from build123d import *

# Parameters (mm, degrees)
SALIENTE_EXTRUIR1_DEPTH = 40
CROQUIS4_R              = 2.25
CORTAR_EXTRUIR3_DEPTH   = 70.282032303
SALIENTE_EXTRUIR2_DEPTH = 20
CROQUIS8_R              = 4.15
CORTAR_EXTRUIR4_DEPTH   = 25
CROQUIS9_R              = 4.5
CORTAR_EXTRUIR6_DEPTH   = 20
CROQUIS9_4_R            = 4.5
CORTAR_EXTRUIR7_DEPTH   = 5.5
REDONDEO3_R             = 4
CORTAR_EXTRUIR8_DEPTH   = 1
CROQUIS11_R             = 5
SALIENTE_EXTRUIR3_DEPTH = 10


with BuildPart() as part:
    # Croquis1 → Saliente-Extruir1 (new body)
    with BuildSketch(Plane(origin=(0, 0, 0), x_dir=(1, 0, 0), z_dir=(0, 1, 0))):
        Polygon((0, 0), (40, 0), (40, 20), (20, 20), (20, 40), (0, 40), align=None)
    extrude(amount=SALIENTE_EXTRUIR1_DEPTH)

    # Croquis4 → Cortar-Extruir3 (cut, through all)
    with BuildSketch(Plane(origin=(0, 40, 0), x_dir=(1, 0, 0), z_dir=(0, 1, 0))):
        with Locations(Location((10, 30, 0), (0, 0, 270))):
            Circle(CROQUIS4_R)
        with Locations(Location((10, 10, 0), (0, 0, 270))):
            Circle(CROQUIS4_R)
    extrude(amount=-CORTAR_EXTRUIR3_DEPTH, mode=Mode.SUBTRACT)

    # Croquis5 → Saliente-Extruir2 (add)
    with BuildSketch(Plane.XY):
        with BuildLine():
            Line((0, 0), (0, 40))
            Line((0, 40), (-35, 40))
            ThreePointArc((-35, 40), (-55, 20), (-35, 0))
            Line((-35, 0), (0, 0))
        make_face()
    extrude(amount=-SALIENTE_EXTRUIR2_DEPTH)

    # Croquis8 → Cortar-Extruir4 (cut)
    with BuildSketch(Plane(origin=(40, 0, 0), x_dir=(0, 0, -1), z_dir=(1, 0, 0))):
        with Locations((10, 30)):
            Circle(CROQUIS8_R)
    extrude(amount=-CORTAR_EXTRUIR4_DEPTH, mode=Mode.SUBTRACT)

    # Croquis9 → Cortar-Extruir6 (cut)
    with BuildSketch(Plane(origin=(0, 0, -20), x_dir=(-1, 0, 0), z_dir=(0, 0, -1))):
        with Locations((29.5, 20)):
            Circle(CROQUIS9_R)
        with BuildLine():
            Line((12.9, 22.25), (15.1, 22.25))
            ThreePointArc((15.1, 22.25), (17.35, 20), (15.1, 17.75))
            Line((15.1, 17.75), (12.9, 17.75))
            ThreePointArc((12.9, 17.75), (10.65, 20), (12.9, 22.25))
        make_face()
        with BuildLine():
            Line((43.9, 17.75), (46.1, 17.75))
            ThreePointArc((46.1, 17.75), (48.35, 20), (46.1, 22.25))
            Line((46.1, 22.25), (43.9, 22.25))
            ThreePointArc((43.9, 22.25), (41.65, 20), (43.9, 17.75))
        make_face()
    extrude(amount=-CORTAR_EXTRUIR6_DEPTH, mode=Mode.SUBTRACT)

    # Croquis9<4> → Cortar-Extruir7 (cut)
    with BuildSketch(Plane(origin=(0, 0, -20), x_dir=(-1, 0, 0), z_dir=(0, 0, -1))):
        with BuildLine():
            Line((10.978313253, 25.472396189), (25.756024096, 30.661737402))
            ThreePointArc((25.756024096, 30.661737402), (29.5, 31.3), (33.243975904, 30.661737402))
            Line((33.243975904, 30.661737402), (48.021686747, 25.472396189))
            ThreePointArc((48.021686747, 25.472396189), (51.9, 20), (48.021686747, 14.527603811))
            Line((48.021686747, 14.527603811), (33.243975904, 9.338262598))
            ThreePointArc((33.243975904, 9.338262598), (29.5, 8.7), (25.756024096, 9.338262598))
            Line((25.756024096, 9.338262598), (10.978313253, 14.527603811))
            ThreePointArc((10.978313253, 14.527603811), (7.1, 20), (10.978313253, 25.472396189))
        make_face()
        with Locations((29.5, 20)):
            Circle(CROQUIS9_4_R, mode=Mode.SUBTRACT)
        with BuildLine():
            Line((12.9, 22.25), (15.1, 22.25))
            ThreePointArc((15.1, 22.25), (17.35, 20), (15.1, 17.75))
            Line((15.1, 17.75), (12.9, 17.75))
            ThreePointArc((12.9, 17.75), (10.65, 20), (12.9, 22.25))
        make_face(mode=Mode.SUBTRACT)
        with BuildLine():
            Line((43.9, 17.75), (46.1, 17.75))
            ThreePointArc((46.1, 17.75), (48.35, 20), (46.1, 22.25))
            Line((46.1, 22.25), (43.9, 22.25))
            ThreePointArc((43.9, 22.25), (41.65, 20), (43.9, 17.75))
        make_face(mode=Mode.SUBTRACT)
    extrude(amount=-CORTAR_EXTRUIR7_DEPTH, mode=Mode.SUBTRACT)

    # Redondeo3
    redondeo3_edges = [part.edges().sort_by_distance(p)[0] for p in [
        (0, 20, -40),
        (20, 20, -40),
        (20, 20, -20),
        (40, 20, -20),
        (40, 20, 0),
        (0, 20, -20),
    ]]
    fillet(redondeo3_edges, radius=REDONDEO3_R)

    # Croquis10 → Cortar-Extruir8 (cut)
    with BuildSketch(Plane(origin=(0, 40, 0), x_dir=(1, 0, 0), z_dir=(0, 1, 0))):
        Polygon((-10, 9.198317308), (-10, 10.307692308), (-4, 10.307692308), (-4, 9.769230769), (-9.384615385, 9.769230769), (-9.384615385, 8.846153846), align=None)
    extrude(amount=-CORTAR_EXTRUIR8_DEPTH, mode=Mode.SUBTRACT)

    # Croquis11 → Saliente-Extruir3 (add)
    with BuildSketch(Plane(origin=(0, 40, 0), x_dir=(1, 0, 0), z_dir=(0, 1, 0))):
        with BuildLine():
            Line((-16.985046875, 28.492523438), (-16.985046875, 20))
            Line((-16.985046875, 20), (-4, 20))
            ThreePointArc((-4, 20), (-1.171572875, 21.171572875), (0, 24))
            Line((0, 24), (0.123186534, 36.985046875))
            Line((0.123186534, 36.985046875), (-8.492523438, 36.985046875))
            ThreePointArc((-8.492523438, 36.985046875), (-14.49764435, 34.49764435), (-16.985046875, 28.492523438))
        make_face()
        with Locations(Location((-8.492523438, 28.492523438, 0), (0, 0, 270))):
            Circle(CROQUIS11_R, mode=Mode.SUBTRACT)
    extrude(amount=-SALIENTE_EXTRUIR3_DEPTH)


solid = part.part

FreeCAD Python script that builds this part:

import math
import FreeCAD as App
import Part
import Sketcher
from FreeCAD import Vector


def edges_at(feature, points):
    """Names of the edges that pass closest to the given points."""
    edges = feature.Shape.Edges
    near = lambda p: min(range(len(edges)), key=lambda i: edges[i].distToShape(Part.Vertex(*p))[0])
    return sorted({f"Edge{near(p) + 1}" for p in points})

doc = App.newDocument("Part")
body = doc.addObject("PartDesign::Body", "Body")

# Sketch on XZ plane
sketch1 = body.newObject("Sketcher::SketchObject", "Sketch")
sketch1.AttachmentSupport = (doc.getObject("XZ_Plane"), [""])
sketch1.MapMode = "FlatFace"
sketch1.addGeometry([
    Part.LineSegment(Vector(0, 0, 0), Vector(40, 0, 0)),  # 0
    Part.LineSegment(Vector(40, 0, 0), Vector(40, -20, 0)),  # 1
    Part.LineSegment(Vector(40, -20, 0), Vector(20, -20, 0)),  # 2
    Part.LineSegment(Vector(20, -20, 0), Vector(20, -40, 0)),  # 3
    Part.LineSegment(Vector(20, -40, 0), Vector(0, -40, 0)),  # 4
    Part.LineSegment(Vector(0, -40, 0), Vector(0, 0, 0)),  # 5
], False)
sketch1.addConstraint([
    Sketcher.Constraint("Coincident", 0, 2, 1, 1),
    Sketcher.Constraint("Coincident", 1, 2, 2, 1),
    Sketcher.Constraint("Coincident", 2, 2, 3, 1),
    Sketcher.Constraint("Coincident", 3, 2, 4, 1),
    Sketcher.Constraint("Coincident", 4, 2, 5, 1),
    Sketcher.Constraint("Coincident", 5, 2, 0, 1),
    Sketcher.Constraint("Horizontal", 0),
    Sketcher.Constraint("Vertical", 1),
    Sketcher.Constraint("Horizontal", 2),
    Sketcher.Constraint("Vertical", 3),
    Sketcher.Constraint("Horizontal", 4),
    Sketcher.Constraint("Vertical", 5),
    Sketcher.Constraint("Coincident", 5, 2, -1, 1),
    Sketcher.Constraint("Equal", 2, 4),
    Sketcher.Constraint("Equal", 4, 1),
    Sketcher.Constraint("Equal", 1, 3),
    Sketcher.Constraint("DistanceX", 0, 1, 0, 2, 40.0),
])
pad1 = body.newObject("PartDesign::Pad", "Pad")
pad1.Profile = sketch1
pad1.Length = 40
pad1.Reversed = True

# Sketch on XZ plane
sketch2 = body.newObject("Sketcher::SketchObject", "Sketch001")
sketch2.AttachmentSupport = (doc.getObject("XZ_Plane"), [""])
sketch2.MapMode = "FlatFace"
sketch2.AttachmentOffset = App.Placement(Vector(0, 0, -40), App.Rotation())
sketch2.addGeometry([
    Part.Circle(Vector(10, -30, 0), Vector(0, 0, 1), 2.2),
    Part.Circle(Vector(10, -10, 0), Vector(0, 0, 1), 2.2),
], False)
sketch2.addConstraint([
    Sketcher.Constraint("Equal", 0, 1),
    Sketcher.Constraint("Vertical", 0, 3, 1, 3),
    Sketcher.Constraint("Diameter", 0, 4.5),
    Sketcher.Constraint("DistanceX", -1, 1, 0, 3, 10.0),
    Sketcher.Constraint("DistanceY", 0, 3, -1, 1, 30.0),
    Sketcher.Constraint("DistanceY", 1, 3, -1, 1, 10.0),
])
pocket1 = body.newObject("PartDesign::Pocket", "Pocket")
pocket1.Profile = sketch2
pocket1.Type = "ThroughAll"
pocket1.Reversed = True

# Sketch on XY plane
sketch3 = body.newObject("Sketcher::SketchObject", "Sketch002")
sketch3.AttachmentSupport = (doc.getObject("XY_Plane"), [""])
sketch3.MapMode = "FlatFace"
sketch3.addGeometry([
    Part.LineSegment(Vector(0, 0, 0), Vector(0, 40, 0)),
    Part.LineSegment(Vector(0, 40, 0), Vector(-35, 40, 0)),
    Part.ArcOfCircle(Part.Circle(Vector(-35, 20, 0), Vector(0, 0, 1), 20), math.radians(90), math.radians(270)),
    Part.LineSegment(Vector(-35, 0, 0), Vector(0, 0, 0)),
], False)
sketch3.addConstraint([
    Sketcher.Constraint("Coincident", 0, 2, 1, 1),
    Sketcher.Constraint("Tangent", 1, 2, 2, 1),
    Sketcher.Constraint("Tangent", 2, 2, 3, 1),
    Sketcher.Constraint("Coincident", 3, 2, 0, 1),
    Sketcher.Constraint("Vertical", 0),
    Sketcher.Constraint("Horizontal", 1),
    Sketcher.Constraint("Horizontal", 3),
    Sketcher.Constraint("Coincident", 3, 2, -1, 1),
    Sketcher.Constraint("Radius", 2, 20.0),
    Sketcher.Constraint("DistanceX", 1, 2, 1, 1, 35.0),
])
pad2 = body.newObject("PartDesign::Pad", "Pad001")
pad2.Profile = sketch3
pad2.Length = 20
pad2.Reversed = True

# Sketch on YZ plane
sketch4 = body.newObject("Sketcher::SketchObject", "Sketch003")
sketch4.AttachmentSupport = (doc.getObject("YZ_Plane"), [""])
sketch4.MapMode = "FlatFace"
sketch4.AttachmentOffset = App.Placement(Vector(0, 0, 40), App.Rotation())
sketch4.addGeometry(Part.Circle(Vector(30, -10, 0), Vector(0, 0, 1), 4.2), False)
sketch4.addConstraint([
    Sketcher.Constraint("Diameter", 0, 8.3),
    Sketcher.Constraint("DistanceX", -1, 1, 0, 3, 30.0),
    Sketcher.Constraint("DistanceY", 0, 3, -1, 1, 10.0),
])
pocket2 = body.newObject("PartDesign::Pocket", "Pocket001")
pocket2.Profile = sketch4
pocket2.Length = 25

# Sketch on XY plane
sketch5 = body.newObject("Sketcher::SketchObject", "Sketch004")
sketch5.AttachmentSupport = (doc.getObject("XY_Plane"), [""])
sketch5.MapMode = "FlatFace"
sketch5.AttachmentOffset = App.Placement(Vector(0, 0, -20), App.Rotation())
sketch5.addGeometry([
    Part.Circle(Vector(-29.5, 20, 0), Vector(0, 0, 1), 4.5),  # 0
    Part.LineSegment(Vector(-15.1, 22.2, 0), Vector(-12.9, 22.2, 0)),  # 1
    Part.ArcOfCircle(Part.Circle(Vector(-12.9, 20, 0), Vector(0, 0, 1), 2.2), math.radians(-90), math.radians(90)),  # 2
    Part.LineSegment(Vector(-12.9, 17.8, 0), Vector(-15.1, 17.8, 0)),  # 3
    Part.ArcOfCircle(Part.Circle(Vector(-15.1, 20, 0), Vector(0, 0, 1), 2.2), math.radians(90), math.radians(270)),  # 4
    Part.LineSegment(Vector(-43.9, 17.8, 0), Vector(-46.1, 17.8, 0)),  # 5
    Part.ArcOfCircle(Part.Circle(Vector(-46.1, 20, 0), Vector(0, 0, 1), 2.2), math.radians(90), math.radians(270)),  # 6
    Part.LineSegment(Vector(-46.1, 22.2, 0), Vector(-43.9, 22.2, 0)),  # 7
    Part.ArcOfCircle(Part.Circle(Vector(-43.9, 20, 0), Vector(0, 0, 1), 2.2), math.radians(-90), math.radians(90)),  # 8
], False)
sketch5.addConstraint([
    Sketcher.Constraint("Tangent", 1, 2, 2, 2),
    Sketcher.Constraint("Tangent", 2, 1, 3, 1),
    Sketcher.Constraint("Tangent", 3, 2, 4, 2),
    Sketcher.Constraint("Tangent", 4, 1, 1, 1),
    Sketcher.Constraint("Tangent", 5, 2, 6, 2),
    Sketcher.Constraint("Tangent", 6, 1, 7, 1),
    Sketcher.Constraint("Tangent", 7, 2, 8, 2),
    Sketcher.Constraint("Tangent", 8, 1, 5, 1),
    Sketcher.Constraint("Horizontal", 1),
    Sketcher.Constraint("Horizontal", 3),
    Sketcher.Constraint("Horizontal", 5),
    Sketcher.Constraint("Horizontal", 7),
    Sketcher.Constraint("Equal", 4, 6),
    Sketcher.Constraint("Horizontal", 0, 3, 2, 3),
    Sketcher.Constraint("Horizontal", 4, 3, 6, 3),
    Sketcher.Constraint("Equal", 3, 5),
    Sketcher.Constraint("Diameter", 0, 9.0),
    Sketcher.Constraint("Radius", 2, 2.25),
    Sketcher.Constraint("DistanceX", 1, 1, 1, 2, 2.2),
    Sketcher.Constraint("DistanceY", -1, 1, 0, 3, 20.0),
    Sketcher.Constraint("DistanceX", 6, 3, 4, 3, 31.0),
    Sketcher.Constraint("DistanceX", 0, 3, -1, 1, 29.5),
    Sketcher.Constraint("DistanceX", 2, 3, -1, 1, 12.9),
])
pocket3 = body.newObject("PartDesign::Pocket", "Pocket002")
pocket3.Profile = sketch5
pocket3.Length = 20
pocket3.Reversed = True

# Sketch on XY plane
sketch6 = body.newObject("Sketcher::SketchObject", "Sketch005")
sketch6.AttachmentSupport = (doc.getObject("XY_Plane"), [""])
sketch6.MapMode = "FlatFace"
sketch6.AttachmentOffset = App.Placement(Vector(0, 0, -20), App.Rotation())
sketch6.addGeometry([
    Part.LineSegment(Vector(-25.8, 30.7, 0), Vector(-11, 25.5, 0)),  # 0
    Part.ArcOfCircle(Part.Circle(Vector(-12.9, 20, 0), Vector(0, 0, 1), 5.8), math.radians(-71), math.radians(71)),  # 1
    Part.LineSegment(Vector(-11, 14.5, 0), Vector(-25.8, 9.3, 0)),  # 2
    Part.ArcOfCircle(Part.Circle(Vector(-29.5, 20, 0), Vector(0, 0, 1), 11.3), math.radians(-109), math.radians(-71)),  # 3
    Part.LineSegment(Vector(-33.2, 9.3, 0), Vector(-48, 14.5, 0)),  # 4
    Part.ArcOfCircle(Part.Circle(Vector(-46.1, 20, 0), Vector(0, 0, 1), 5.8), math.radians(109), math.radians(251)),  # 5
    Part.LineSegment(Vector(-48, 25.5, 0), Vector(-33.2, 30.7, 0)),  # 6
    Part.ArcOfCircle(Part.Circle(Vector(-29.5, 20, 0), Vector(0, 0, 1), 11.3), math.radians(71), math.radians(109)),  # 7
    Part.ArcOfCircle(Part.Circle(Vector(-43.9, 20, 0), Vector(0, 0, 1), 2.2), math.radians(-90), math.radians(90)),  # 8
    Part.LineSegment(Vector(-43.9, 22.2, 0), Vector(-46.1, 22.2, 0)),  # 9
    Part.ArcOfCircle(Part.Circle(Vector(-46.1, 20, 0), Vector(0, 0, 1), 2.2), math.radians(90), math.radians(270)),  # 10
    Part.LineSegment(Vector(-46.1, 17.8, 0), Vector(-43.9, 17.8, 0)),  # 11
    Part.Circle(Vector(-29.5, 20, 0), Vector(0, 0, 1), 4.5),  # 12
    Part.LineSegment(Vector(-12.9, 22.2, 0), Vector(-15.1, 22.2, 0)),  # 13
    Part.ArcOfCircle(Part.Circle(Vector(-15.1, 20, 0), Vector(0, 0, 1), 2.2), math.radians(90), math.radians(270)),  # 14
    Part.LineSegment(Vector(-15.1, 17.8, 0), Vector(-12.9, 17.8, 0)),  # 15
    Part.ArcOfCircle(Part.Circle(Vector(-12.9, 20, 0), Vector(0, 0, 1), 2.2), math.radians(-90), math.radians(90)),  # 16
], False)
sketch6.addConstraint([
    Sketcher.Constraint("Tangent", 0, 2, 1, 2),
    Sketcher.Constraint("Tangent", 1, 1, 2, 1),
    Sketcher.Constraint("Tangent", 2, 2, 3, 2),
    Sketcher.Constraint("Tangent", 3, 1, 4, 1),
    Sketcher.Constraint("Tangent", 4, 2, 5, 2),
    Sketcher.Constraint("Tangent", 5, 1, 6, 1),
    Sketcher.Constraint("Tangent", 6, 2, 7, 2),
    Sketcher.Constraint("Tangent", 7, 1, 0, 1),
    Sketcher.Constraint("Tangent", 8, 2, 9, 1),
    Sketcher.Constraint("Tangent", 9, 2, 10, 1),
    Sketcher.Constraint("Tangent", 10, 2, 11, 1),
    Sketcher.Constraint("Tangent", 11, 2, 8, 1),
    Sketcher.Constraint("Tangent", 13, 2, 14, 1),
    Sketcher.Constraint("Tangent", 14, 2, 15, 1),
    Sketcher.Constraint("Tangent", 15, 2, 16, 1),
    Sketcher.Constraint("Tangent", 16, 2, 13, 1),
    Sketcher.Constraint("Horizontal", 9),
    Sketcher.Constraint("Horizontal", 11),
    Sketcher.Constraint("Horizontal", 13),
    Sketcher.Constraint("Horizontal", 15),
    Sketcher.Constraint("Coincident", 7, 3, 3, 3),
    Sketcher.Constraint("Coincident", 10, 3, 5, 3),
    Sketcher.Constraint("Coincident", 12, 3, 3, 3),
    Sketcher.Constraint("Coincident", 16, 3, 1, 3),
    Sketcher.Constraint("Equal", 1, 5),
    Sketcher.Constraint("Equal", 3, 7),
    Sketcher.Constraint("Equal", 10, 14),
    Sketcher.Constraint("Parallel", 0, 4),
    Sketcher.Constraint("Parallel", 2, 6),
    Sketcher.Constraint("Horizontal", 1, 3, 3, 3),
    Sketcher.Constraint("Equal", 11, 13),
    Sketcher.Constraint("Diameter", 12, 9.0),
    Sketcher.Constraint("Radius", 1, 5.8),
    Sketcher.Constraint("Radius", 3, 11.3),
    Sketcher.Constraint("Radius", 8, 2.25),
    Sketcher.Constraint("DistanceX", 9, 2, 9, 1, 2.2),
    Sketcher.Constraint("DistanceY", -1, 1, 1, 3, 20.0),
    Sketcher.Constraint("DistanceX", 8, 3, 1, 3, 31.0),
    Sketcher.Constraint("DistanceX", 1, 3, -1, 1, 12.9),
])
pocket4 = body.newObject("PartDesign::Pocket", "Pocket003")
pocket4.Profile = sketch6
pocket4.Length = 5.5
pocket4.Reversed = True
doc.recompute()

fillet = body.newObject("PartDesign::Fillet", "Fillet")
fillet.Base = (pocket4, edges_at(pocket4, [
    (0, 20, -40),
    (20, 20, -40),
    (20, 20, -20),
    (40, 20, -20),
    (40, 20, 0),
    (0, 20, -20),
]))
fillet.Radius = 4

# Sketch on XZ plane
sketch7 = body.newObject("Sketcher::SketchObject", "Sketch006")
sketch7.AttachmentSupport = (doc.getObject("XZ_Plane"), [""])
sketch7.MapMode = "FlatFace"
sketch7.AttachmentOffset = App.Placement(Vector(0, 0, -40), App.Rotation())
sketch7.addGeometry([
    Part.LineSegment(Vector(-10, -10.3, 0), Vector(-10, -9.2, 0)),  # 0
    Part.LineSegment(Vector(-10, -9.2, 0), Vector(-9.4, -8.8, 0)),  # 1
    Part.LineSegment(Vector(-9.4, -8.8, 0), Vector(-9.4, -9.8, 0)),  # 2
    Part.LineSegment(Vector(-9.4, -9.8, 0), Vector(-4, -9.8, 0)),  # 3
    Part.LineSegment(Vector(-4, -9.8, 0), Vector(-4, -10.3, 0)),  # 4
    Part.LineSegment(Vector(-4, -10.3, 0), Vector(-10, -10.3, 0)),  # 5
], False)
sketch7.addConstraint([
    Sketcher.Constraint("Coincident", 0, 2, 1, 1),
    Sketcher.Constraint("Coincident", 1, 2, 2, 1),
    Sketcher.Constraint("Coincident", 2, 2, 3, 1),
    Sketcher.Constraint("Coincident", 3, 2, 4, 1),
    Sketcher.Constraint("Coincident", 4, 2, 5, 1),
    Sketcher.Constraint("Coincident", 5, 2, 0, 1),
    Sketcher.Constraint("Vertical", 0),
    Sketcher.Constraint("Vertical", 2),
    Sketcher.Constraint("Horizontal", 3),
    Sketcher.Constraint("Vertical", 4),
    Sketcher.Constraint("Horizontal", 5),
    Sketcher.Constraint("DistanceX", 5, 2, 5, 1, 6.0),
    Sketcher.Constraint("DistanceX", 0, 2, -1, 1, 10.0),
    Sketcher.Constraint("DistanceY", 4, 2, 4, 1, 0.538462),
    Sketcher.Constraint("DistanceX", 3, 1, 3, 2, 5.384615),
    Sketcher.Constraint("DistanceY", 0, 1, 0, 2, 1.109375),
    Sketcher.Constraint("DistanceY", 2, 2, 2, 1, 0.923077),
    Sketcher.Constraint("DistanceY", 2, 2, -1, 1, 9.769231),
])
pocket5 = body.newObject("PartDesign::Pocket", "Pocket004")
pocket5.Profile = sketch7
pocket5.Length = 1
pocket5.Reversed = True

# Sketch on XZ plane
sketch8 = body.newObject("Sketcher::SketchObject", "Sketch007")
sketch8.AttachmentSupport = (doc.getObject("XZ_Plane"), [""])
sketch8.MapMode = "FlatFace"
sketch8.AttachmentOffset = App.Placement(Vector(0, 0, -40), App.Rotation())
sketch8.addGeometry([
    Part.LineSegment(Vector(-17, -28.5, 0), Vector(-17, -20, 0)),  # 0
    Part.LineSegment(Vector(-17, -20, 0), Vector(-4, -20, 0)),  # 1
    Part.ArcOfCircle(Part.Circle(Vector(-4, -24, 0), Vector(0, 0, 1), 4), math.radians(0), math.radians(90)),  # 2
    Part.LineSegment(Vector(0, -24, 0), Vector(0.1, -37, 0)),  # 3
    Part.LineSegment(Vector(0.1, -37, 0), Vector(-8.5, -37, 0)),  # 4
    Part.ArcOfCircle(Part.Circle(Vector(-8.5, -28.5, 0), Vector(0, 0, 1), 8.5), math.radians(180), math.radians(270)),  # 5
    Part.Circle(Vector(-8.5, -28.5, 0), Vector(0, 0, 1), 5),  # 6
], False)
sketch8.addConstraint([
    Sketcher.Constraint("Coincident", 0, 2, 1, 1),
    Sketcher.Constraint("Tangent", 1, 2, 2, 2),
    Sketcher.Constraint("Coincident", 2, 1, 3, 1),
    Sketcher.Constraint("Coincident", 3, 2, 4, 1),
    Sketcher.Constraint("Tangent", 4, 2, 5, 2),
    Sketcher.Constraint("Tangent", 5, 1, 0, 1),
    Sketcher.Constraint("Vertical", 0),
    Sketcher.Constraint("Horizontal", 1),
    Sketcher.Constraint("Horizontal", 4),
    Sketcher.Constraint("Coincident", 6, 3, 5, 3),
    Sketcher.Constraint("PointOnObject", 2, 1, -2),
    Sketcher.Constraint("Diameter", 6, 10.0),
    Sketcher.Constraint("Radius", 2, 4.0),
    Sketcher.Constraint("DistanceY", 2, 3, -1, 1, 24.0),
    Sketcher.Constraint("DistanceY", 2, 1, -1, 1, 24.0),
    Sketcher.Constraint("Radius", 5, 8.492523),
    Sketcher.Constraint("DistanceX", 4, 2, 4, 1, 8.61571),
    Sketcher.Constraint("Distance", 3, 12.985631),
    Sketcher.Constraint("DistanceX", 1, 1, 1, 2, 12.985047),
])
pad3 = body.newObject("PartDesign::Pad", "Pad002")
pad3.Profile = sketch8
pad3.Length = 10

doc.recompute()
